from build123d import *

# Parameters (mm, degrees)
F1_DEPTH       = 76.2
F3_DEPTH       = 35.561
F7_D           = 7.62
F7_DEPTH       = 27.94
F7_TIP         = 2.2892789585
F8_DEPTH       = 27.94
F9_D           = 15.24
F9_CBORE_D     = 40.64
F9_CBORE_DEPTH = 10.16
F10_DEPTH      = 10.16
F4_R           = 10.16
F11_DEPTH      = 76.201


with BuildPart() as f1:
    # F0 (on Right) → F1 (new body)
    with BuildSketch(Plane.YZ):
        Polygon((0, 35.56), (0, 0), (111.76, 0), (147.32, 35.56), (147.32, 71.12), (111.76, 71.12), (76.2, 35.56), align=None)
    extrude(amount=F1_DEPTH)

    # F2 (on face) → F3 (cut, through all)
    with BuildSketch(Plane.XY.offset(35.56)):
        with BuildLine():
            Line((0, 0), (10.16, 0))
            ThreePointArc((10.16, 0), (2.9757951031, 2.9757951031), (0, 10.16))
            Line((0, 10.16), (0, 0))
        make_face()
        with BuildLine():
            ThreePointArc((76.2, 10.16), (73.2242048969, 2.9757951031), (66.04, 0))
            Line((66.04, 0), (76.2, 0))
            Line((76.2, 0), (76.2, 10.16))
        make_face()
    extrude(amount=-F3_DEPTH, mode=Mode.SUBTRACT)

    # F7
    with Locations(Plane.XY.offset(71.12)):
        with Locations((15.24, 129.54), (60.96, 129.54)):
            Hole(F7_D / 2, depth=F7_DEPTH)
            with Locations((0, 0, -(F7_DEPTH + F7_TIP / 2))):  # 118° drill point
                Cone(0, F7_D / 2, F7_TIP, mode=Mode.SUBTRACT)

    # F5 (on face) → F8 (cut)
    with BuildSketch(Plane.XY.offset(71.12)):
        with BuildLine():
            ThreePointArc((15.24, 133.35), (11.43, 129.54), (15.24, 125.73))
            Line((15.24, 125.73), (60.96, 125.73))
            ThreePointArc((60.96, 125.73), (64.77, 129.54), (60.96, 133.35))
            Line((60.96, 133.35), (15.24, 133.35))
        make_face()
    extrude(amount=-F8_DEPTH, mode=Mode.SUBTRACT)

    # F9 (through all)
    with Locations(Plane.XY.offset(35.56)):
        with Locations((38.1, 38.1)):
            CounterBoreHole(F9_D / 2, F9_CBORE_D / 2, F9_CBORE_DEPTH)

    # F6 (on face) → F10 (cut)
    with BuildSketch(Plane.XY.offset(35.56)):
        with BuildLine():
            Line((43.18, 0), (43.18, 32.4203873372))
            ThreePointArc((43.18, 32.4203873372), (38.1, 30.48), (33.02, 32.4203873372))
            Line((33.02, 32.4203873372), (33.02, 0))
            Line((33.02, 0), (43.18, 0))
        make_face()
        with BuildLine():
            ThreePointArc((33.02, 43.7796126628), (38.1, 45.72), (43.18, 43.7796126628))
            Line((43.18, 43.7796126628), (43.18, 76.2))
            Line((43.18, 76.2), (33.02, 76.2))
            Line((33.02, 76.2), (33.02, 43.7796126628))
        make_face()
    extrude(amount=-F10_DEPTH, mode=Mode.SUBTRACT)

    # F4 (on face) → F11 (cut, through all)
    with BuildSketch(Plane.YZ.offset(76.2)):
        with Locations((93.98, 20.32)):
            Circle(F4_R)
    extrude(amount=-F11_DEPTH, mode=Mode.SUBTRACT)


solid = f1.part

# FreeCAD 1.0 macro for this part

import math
import FreeCAD as App
import Part
import Sketcher

V = App.Vector
Q = App.Units.Quantity

doc = App.newDocument("Part")
body = doc.addObject("PartDesign::Body", "Body")

# Sketch on YZ plane
sketch1 = body.newObject("Sketcher::SketchObject", "Sketch")
sketch1.AttachmentSupport = (doc.getObject("YZ_Plane"), [""])
sketch1.MapMode = "FlatFace"
sketch1.addGeometry(Part.LineSegment(V(0, 36, 0), V(0, 0, 0)), False)
sketch1.addGeometry(Part.LineSegment(V(0, 0, 0), V(112, 0, 0)), False)
sketch1.addGeometry(Part.LineSegment(V(112, 0, 0), V(147, 36, 0)), False)
sketch1.addGeometry(Part.LineSegment(V(147, 36, 0), V(147, 71, 0)), False)
sketch1.addGeometry(Part.LineSegment(V(147, 71, 0), V(112, 71, 0)), False)
sketch1.addGeometry(Part.LineSegment(V(112, 71, 0), V(76, 36, 0)), False)
sketch1.addGeometry(Part.LineSegment(V(76, 36, 0), V(0, 36, 0)), False)
sketch1.addConstraint(Sketcher.Constraint("Coincident", 0, 2, 1, 1))
sketch1.addConstraint(Sketcher.Constraint("Coincident", 1, 2, 2, 1))
sketch1.addConstraint(Sketcher.Constraint("Coincident", 2, 2, 3, 1))
sketch1.addConstraint(Sketcher.Constraint("Coincident", 3, 2, 4, 1))
sketch1.addConstraint(Sketcher.Constraint("Coincident", 4, 2, 5, 1))
sketch1.addConstraint(Sketcher.Constraint("Coincident", 5, 2, 6, 1))
sketch1.addConstraint(Sketcher.Constraint("Coincident", 6, 2, 0, 1))
sketch1.addConstraint(Sketcher.Constraint("Vertical", 0))
sketch1.addConstraint(Sketcher.Constraint("Horizontal", 1))
sketch1.addConstraint(Sketcher.Constraint("Vertical", 3))
sketch1.addConstraint(Sketcher.Constraint("Horizontal", 4))
sketch1.addConstraint(Sketcher.Constraint("Horizontal", 6))
sketch1.addConstraint(Sketcher.Constraint("Coincident", 0, 2, -1, 1))
sketch1.addConstraint(Sketcher.Constraint("Parallel", 2, 5))
sketch1.addConstraint(Sketcher.Constraint("Horizontal", 2, 2, 5, 2))
sketch1.addConstraint(Sketcher.Constraint("Vertical", 1, 2, 4, 2))
sketch1.addConstraint(Sketcher.Constraint("Equal", 4, 0))
sketch1.addConstraint(Sketcher.Constraint("Equal", 0, 3))
sketch1.addConstraint(Sketcher.Constraint("DistanceX", 6, 2, 6, 1, Q("3 in")))
sketch1.addConstraint(Sketcher.Constraint("DistanceX", 1, 1, 1, 2, Q("4.4 in")))
pad1 = body.newObject("PartDesign::Pad", "Pad")
pad1.Profile = sketch1
pad1.Length = Q("3 in")

# Sketch on XY plane
sketch2 = body.newObject("Sketcher::SketchObject", "Sketch001")
sketch2.AttachmentSupport = (doc.getObject("XY_Plane"), [""])
sketch2.MapMode = "FlatFace"
sketch2.AttachmentOffset = App.Placement(V(0, 0, 1.4 * 25.4), App.Rotation())
sketch2.addGeometry(Part.LineSegment(V(0, 0, 0), V(10, 0, 0)), False)
sketch2.addGeometry(Part.ArcOfCircle(Part.Circle(V(10, 10, 0), V(0, 0, 1), 10), math.radians(180), math.radians(270)), False)
sketch2.addGeometry(Part.LineSegment(V(0, 10, 0), V(0, 0, 0)), False)
sketch2.addGeometry(Part.ArcOfCircle(Part.Circle(V(66, 10, 0), V(0, 0, 1), 10), math.radians(-90), math.radians(0)), False)
sketch2.addGeometry(Part.LineSegment(V(66, 0, 0), V(76, 0, 0)), False)
sketch2.addGeometry(Part.LineSegment(V(76, 0, 0), V(76, 10, 0)), False)
sketch2.addConstraint(Sketcher.Constraint("Tangent", 0, 2, 1, 2))
sketch2.addConstraint(Sketcher.Constraint("Tangent", 1, 1, 2, 1))
sketch2.addConstraint(Sketcher.Constraint("Coincident", 2, 2, 0, 1))
sketch2.addConstraint(Sketcher.Constraint("Tangent", 3, 1, 4, 1))
sketch2.addConstraint(Sketcher.Constraint("Coincident", 4, 2, 5, 1))
sketch2.addConstraint(Sketcher.Constraint("Tangent", 5, 2, 3, 2))
sketch2.addConstraint(Sketcher.Constraint("Horizontal", 0))
sketch2.addConstraint(Sketcher.Constraint("Vertical", 2))
sketch2.addConstraint(Sketcher.Constraint("Horizontal", 4))
sketch2.addConstraint(Sketcher.Constraint("Vertical", 5))
sketch2.addConstraint(Sketcher.Constraint("Coincident", 2, 2, -1, 1))
sketch2.addConstraint(Sketcher.Constraint("Equal", 1, 3))
sketch2.addConstraint(Sketcher.Constraint("PointOnObject", 3, 1, -1))
sketch2.addConstraint(Sketcher.Constraint("Radius", 1, Q("0.4 in")))
sketch2.addConstraint(Sketcher.Constraint("DistanceX", -1, 1, 4, 2, Q("3 in")))
pocket1 = body.newObject("PartDesign::Pocket", "Pocket")
pocket1.Profile = sketch2
pocket1.Type = "ThroughAll"

# Sketch on XY plane
sketch3 = body.newObject("Sketcher::SketchObject", "Sketch002")
sketch3.AttachmentSupport = (doc.getObject("XY_Plane"), [""])
sketch3.MapMode = "FlatFace"
sketch3.AttachmentOffset = App.Placement(V(0, 0, 2.8 * 25.4), App.Rotation())
sketch3.addGeometry(Part.Circle(V(15.2, 129.5, 0), V(0, 0, 1), 3.8), False)
sketch3.addGeometry(Part.Circle(V(61, 129.5, 0), V(0, 0, 1), 3.8), False)
sketch3.addConstraint(Sketcher.Constraint("Equal", 0, 1))
sketch3.addConstraint(Sketcher.Constraint("Horizontal", 0, 3, 1, 3))
sketch3.addConstraint(Sketcher.Constraint("Diameter", 0, Q("0.3 in")))
sketch3.addConstraint(Sketcher.Constraint("DistanceX", -1, 1, 0, 3, Q("0.6 in")))
sketch3.addConstraint(Sketcher.Constraint("DistanceY", -1, 1, 0, 3, Q("5.1 in")))
sketch3.addConstraint(Sketcher.Constraint("DistanceX", -1, 1, 1, 3, Q("2.4 in")))
doc.recompute()
hole = body.newObject("PartDesign::Hole", "Hole")
hole.Profile = sketch3
hole.ThreadType = "None"
hole.Diameter = Q("0.3 in")
hole.DepthType = "Dimension"
hole.Depth = Q("1.1 in")
hole.DrillPoint = "Angled"
hole.DrillPointAngle = 118

# Sketch on XY plane
sketch4 = body.newObject("Sketcher::SketchObject", "Sketch003")
sketch4.AttachmentSupport = (doc.getObject("XY_Plane"), [""])
sketch4.MapMode = "FlatFace"
sketch4.AttachmentOffset = App.Placement(V(0, 0, 2.8 * 25.4), App.Rotation())
sketch4.addGeometry(Part.ArcOfCircle(Part.Circle(V(15.2, 129.5, 0), V(0, 0, 1), 3.8), math.radians(90), math.radians(270)), False)
sketch4.addGeometry(Part.LineSegment(V(15.2, 125.7, 0), V(61, 125.7, 0)), False)
sketch4.addGeometry(Part.ArcOfCircle(Part.Circle(V(61, 129.5, 0), V(0, 0, 1), 3.8), math.radians(-90), math.radians(90)), False)
sketch4.addGeometry(Part.LineSegment(V(61, 133.3, 0), V(15.2, 133.3, 0)), False)
sketch4.addConstraint(Sketcher.Constraint("Tangent", 0, 2, 1, 1))
sketch4.addConstraint(Sketcher.Constraint("Tangent", 1, 2, 2, 1))
sketch4.addConstraint(Sketcher.Constraint("Tangent", 2, 2, 3, 1))
sketch4.addConstraint(Sketcher.Constraint("Tangent", 3, 2, 0, 1))
sketch4.addConstraint(Sketcher.Constraint("Horizontal", 1))
sketch4.addConstraint(Sketcher.Constraint("Horizontal", 3))
sketch4.addConstraint(Sketcher.Constraint("Radius", 0, Q("0.15 in")))
sketch4.addConstraint(Sketcher.Constraint("DistanceX", 1, 1, 1, 2, Q("1.8 in")))
sketch4.addConstraint(Sketcher.Constraint("DistanceX", -1, 1, 0, 3, Q("0.6 in")))
sketch4.addConstraint(Sketcher.Constraint("DistanceY", -1, 1, 0, 3, Q("5.1 in")))
pocket2 = body.newObject("PartDesign::Pocket", "Pocket001")
pocket2.Profile = sketch4
pocket2.Length = Q("1.1 in")

# Sketch on XY plane
sketch5 = body.newObject("Sketcher::SketchObject", "Sketch004")
sketch5.AttachmentSupport = (doc.getObject("XY_Plane"), [""])
sketch5.MapMode = "FlatFace"
sketch5.AttachmentOffset = App.Placement(V(0, 0, 1.4 * 25.4), App.Rotation())
sketch5.addGeometry(Part.Circle(V(38, 38, 0), V(0, 0, 1), 8), False)
sketch5.addConstraint(Sketcher.Constraint("Diameter", 0, Q("0.6 in")))
sketch5.addConstraint(Sketcher.Constraint("DistanceX", -1, 1, 0, 3, Q("1.5 in")))
sketch5.addConstraint(Sketcher.Constraint("DistanceY", -1, 1, 0, 3, Q("1.5 in")))
doc.recompute()
hole2 = body.newObject("PartDesign::Hole", "Hole001")
hole2.Profile = sketch5
hole2.ThreadType = "None"
hole2.Diameter = Q("0.6 in")
hole2.DepthType = "ThroughAll"
hole2.HoleCutType = "Counterbore"
hole2.HoleCutDiameter = Q("1.6 in")
hole2.HoleCutDepth = Q("0.4 in")

# Sketch on XY plane
sketch6 = body.newObject("Sketcher::SketchObject", "Sketch005")
sketch6.AttachmentSupport = (doc.getObject("XY_Plane"), [""])
sketch6.MapMode = "FlatFace"
sketch6.AttachmentOffset = App.Placement(V(0, 0, 1.4 * 25.4), App.Rotation())
sketch6.addGeometry(Part.LineSegment(V(43, 0, 0), V(43, 32, 0)), False)
sketch6.addGeometry(Part.ArcOfCircle(Part.Circle(V(38, 38, 0), V(0, 0, 1), 8), math.radians(-132), math.radians(-48)), False)
sketch6.addGeometry(Part.LineSegment(V(33, 32, 0), V(33, 0, 0)), False)
sketch6.addGeometry(Part.LineSegment(V(33, 0, 0), V(43, 0, 0)), False)
sketch6.addGeometry(Part.ArcOfCircle(Part.Circle(V(38, 38, 0), V(0, 0, 1), 8), math.radians(48), math.radians(132)), False)
sketch6.addGeometry(Part.LineSegment(V(43, 44, 0), V(43, 76, 0)), False)
sketch6.addGeometry(Part.LineSegment(V(43, 76, 0), V(33, 76, 0)), False)
sketch6.addGeometry(Part.LineSegment(V(33, 76, 0), V(33, 44, 0)), False)
sketch6.addConstraint(Sketcher.Constraint("Coincident", 0, 2, 1, 2))
sketch6.addConstraint(Sketcher.Constraint("Coincident", 1, 1, 2, 1))
sketch6.addConstraint(Sketcher.Constraint("Coincident", 2, 2, 3, 1))
sketch6.addConstraint(Sketcher.Constraint("Coincident", 3, 2, 0, 1))
sketch6.addConstraint(Sketcher.Constraint("Coincident", 4, 1, 5, 1))
sketch6.addConstraint(Sketcher.Constraint("Coincident", 5, 2, 6, 1))
sketch6.addConstraint(Sketcher.Constraint("Coincident", 6, 2, 7, 1))
sketch6.addConstraint(Sketcher.Constraint("Coincident", 7, 2, 4, 2))
sketch6.addConstraint(Sketcher.Constraint("Vertical", 0))
sketch6.addConstraint(Sketcher.Constraint("Vertical", 2))
sketch6.addConstraint(Sketcher.Constraint("Horizontal", 3))
sketch6.addConstraint(Sketcher.Constraint("Vertical", 5))
sketch6.addConstraint(Sketcher.Constraint("Horizontal", 6))
sketch6.addConstraint(Sketcher.Constraint("Vertical", 7))
sketch6.addConstraint(Sketcher.Constraint("Coincident", 4, 3, 1, 3))
sketch6.addConstraint(Sketcher.Constraint("Equal", 1, 4))
sketch6.addConstraint(Sketcher.Constraint("PointOnObject", 2, 2, -1))
sketch6.addConstraint(Sketcher.Constraint("Horizontal", 0, 2, 1, 1))
sketch6.addConstraint(Sketcher.Constraint("Horizontal", 4, 1, 7, 2))
sketch6.addConstraint(Sketcher.Constraint("Vertical", 3, 2, 4, 1))
sketch6.addConstraint(Sketcher.Constraint("Equal", 2, 5))
sketch6.addConstraint(Sketcher.Constraint("Radius", 1, Q("0.3 in")))
sketch6.addConstraint(Sketcher.Constraint("DistanceX", 3, 1, 3, 2, Q("0.4 in")))
sketch6.addConstraint(Sketcher.Constraint("DistanceY", -1, 1, 5, 2, Q("3 in")))
sketch6.addConstraint(Sketcher.Constraint("DistanceX", -1, 1, 1, 3, Q("1.5 in")))
pocket3 = body.newObject("PartDesign::Pocket", "Pocket002")
pocket3.Profile = sketch6
pocket3.Length = Q("0.4 in")

# Sketch on YZ plane
sketch7 = body.newObject("Sketcher::SketchObject", "Sketch006")
sketch7.AttachmentSupport = (doc.getObject("YZ_Plane"), [""])
sketch7.MapMode = "FlatFace"
sketch7.AttachmentOffset = App.Placement(V(0, 0, 3 * 25.4), App.Rotation())
sketch7.addGeometry(Part.Circle(V(94, 20, 0), V(0, 0, 1), 10), False)
sketch7.addConstraint(Sketcher.Constraint("Diameter", 0, Q("0.8 in")))
sketch7.addConstraint(Sketcher.Constraint("DistanceX", -1, 1, 0, 3, Q("3.7 in")))
sketch7.addConstraint(Sketcher.Constraint("DistanceY", -1, 1, 0, 3, Q("0.8 in")))
pocket4 = body.newObject("PartDesign::Pocket", "Pocket003")
pocket4.Profile = sketch7
pocket4.Type = "ThroughAll"

doc.recompute()
